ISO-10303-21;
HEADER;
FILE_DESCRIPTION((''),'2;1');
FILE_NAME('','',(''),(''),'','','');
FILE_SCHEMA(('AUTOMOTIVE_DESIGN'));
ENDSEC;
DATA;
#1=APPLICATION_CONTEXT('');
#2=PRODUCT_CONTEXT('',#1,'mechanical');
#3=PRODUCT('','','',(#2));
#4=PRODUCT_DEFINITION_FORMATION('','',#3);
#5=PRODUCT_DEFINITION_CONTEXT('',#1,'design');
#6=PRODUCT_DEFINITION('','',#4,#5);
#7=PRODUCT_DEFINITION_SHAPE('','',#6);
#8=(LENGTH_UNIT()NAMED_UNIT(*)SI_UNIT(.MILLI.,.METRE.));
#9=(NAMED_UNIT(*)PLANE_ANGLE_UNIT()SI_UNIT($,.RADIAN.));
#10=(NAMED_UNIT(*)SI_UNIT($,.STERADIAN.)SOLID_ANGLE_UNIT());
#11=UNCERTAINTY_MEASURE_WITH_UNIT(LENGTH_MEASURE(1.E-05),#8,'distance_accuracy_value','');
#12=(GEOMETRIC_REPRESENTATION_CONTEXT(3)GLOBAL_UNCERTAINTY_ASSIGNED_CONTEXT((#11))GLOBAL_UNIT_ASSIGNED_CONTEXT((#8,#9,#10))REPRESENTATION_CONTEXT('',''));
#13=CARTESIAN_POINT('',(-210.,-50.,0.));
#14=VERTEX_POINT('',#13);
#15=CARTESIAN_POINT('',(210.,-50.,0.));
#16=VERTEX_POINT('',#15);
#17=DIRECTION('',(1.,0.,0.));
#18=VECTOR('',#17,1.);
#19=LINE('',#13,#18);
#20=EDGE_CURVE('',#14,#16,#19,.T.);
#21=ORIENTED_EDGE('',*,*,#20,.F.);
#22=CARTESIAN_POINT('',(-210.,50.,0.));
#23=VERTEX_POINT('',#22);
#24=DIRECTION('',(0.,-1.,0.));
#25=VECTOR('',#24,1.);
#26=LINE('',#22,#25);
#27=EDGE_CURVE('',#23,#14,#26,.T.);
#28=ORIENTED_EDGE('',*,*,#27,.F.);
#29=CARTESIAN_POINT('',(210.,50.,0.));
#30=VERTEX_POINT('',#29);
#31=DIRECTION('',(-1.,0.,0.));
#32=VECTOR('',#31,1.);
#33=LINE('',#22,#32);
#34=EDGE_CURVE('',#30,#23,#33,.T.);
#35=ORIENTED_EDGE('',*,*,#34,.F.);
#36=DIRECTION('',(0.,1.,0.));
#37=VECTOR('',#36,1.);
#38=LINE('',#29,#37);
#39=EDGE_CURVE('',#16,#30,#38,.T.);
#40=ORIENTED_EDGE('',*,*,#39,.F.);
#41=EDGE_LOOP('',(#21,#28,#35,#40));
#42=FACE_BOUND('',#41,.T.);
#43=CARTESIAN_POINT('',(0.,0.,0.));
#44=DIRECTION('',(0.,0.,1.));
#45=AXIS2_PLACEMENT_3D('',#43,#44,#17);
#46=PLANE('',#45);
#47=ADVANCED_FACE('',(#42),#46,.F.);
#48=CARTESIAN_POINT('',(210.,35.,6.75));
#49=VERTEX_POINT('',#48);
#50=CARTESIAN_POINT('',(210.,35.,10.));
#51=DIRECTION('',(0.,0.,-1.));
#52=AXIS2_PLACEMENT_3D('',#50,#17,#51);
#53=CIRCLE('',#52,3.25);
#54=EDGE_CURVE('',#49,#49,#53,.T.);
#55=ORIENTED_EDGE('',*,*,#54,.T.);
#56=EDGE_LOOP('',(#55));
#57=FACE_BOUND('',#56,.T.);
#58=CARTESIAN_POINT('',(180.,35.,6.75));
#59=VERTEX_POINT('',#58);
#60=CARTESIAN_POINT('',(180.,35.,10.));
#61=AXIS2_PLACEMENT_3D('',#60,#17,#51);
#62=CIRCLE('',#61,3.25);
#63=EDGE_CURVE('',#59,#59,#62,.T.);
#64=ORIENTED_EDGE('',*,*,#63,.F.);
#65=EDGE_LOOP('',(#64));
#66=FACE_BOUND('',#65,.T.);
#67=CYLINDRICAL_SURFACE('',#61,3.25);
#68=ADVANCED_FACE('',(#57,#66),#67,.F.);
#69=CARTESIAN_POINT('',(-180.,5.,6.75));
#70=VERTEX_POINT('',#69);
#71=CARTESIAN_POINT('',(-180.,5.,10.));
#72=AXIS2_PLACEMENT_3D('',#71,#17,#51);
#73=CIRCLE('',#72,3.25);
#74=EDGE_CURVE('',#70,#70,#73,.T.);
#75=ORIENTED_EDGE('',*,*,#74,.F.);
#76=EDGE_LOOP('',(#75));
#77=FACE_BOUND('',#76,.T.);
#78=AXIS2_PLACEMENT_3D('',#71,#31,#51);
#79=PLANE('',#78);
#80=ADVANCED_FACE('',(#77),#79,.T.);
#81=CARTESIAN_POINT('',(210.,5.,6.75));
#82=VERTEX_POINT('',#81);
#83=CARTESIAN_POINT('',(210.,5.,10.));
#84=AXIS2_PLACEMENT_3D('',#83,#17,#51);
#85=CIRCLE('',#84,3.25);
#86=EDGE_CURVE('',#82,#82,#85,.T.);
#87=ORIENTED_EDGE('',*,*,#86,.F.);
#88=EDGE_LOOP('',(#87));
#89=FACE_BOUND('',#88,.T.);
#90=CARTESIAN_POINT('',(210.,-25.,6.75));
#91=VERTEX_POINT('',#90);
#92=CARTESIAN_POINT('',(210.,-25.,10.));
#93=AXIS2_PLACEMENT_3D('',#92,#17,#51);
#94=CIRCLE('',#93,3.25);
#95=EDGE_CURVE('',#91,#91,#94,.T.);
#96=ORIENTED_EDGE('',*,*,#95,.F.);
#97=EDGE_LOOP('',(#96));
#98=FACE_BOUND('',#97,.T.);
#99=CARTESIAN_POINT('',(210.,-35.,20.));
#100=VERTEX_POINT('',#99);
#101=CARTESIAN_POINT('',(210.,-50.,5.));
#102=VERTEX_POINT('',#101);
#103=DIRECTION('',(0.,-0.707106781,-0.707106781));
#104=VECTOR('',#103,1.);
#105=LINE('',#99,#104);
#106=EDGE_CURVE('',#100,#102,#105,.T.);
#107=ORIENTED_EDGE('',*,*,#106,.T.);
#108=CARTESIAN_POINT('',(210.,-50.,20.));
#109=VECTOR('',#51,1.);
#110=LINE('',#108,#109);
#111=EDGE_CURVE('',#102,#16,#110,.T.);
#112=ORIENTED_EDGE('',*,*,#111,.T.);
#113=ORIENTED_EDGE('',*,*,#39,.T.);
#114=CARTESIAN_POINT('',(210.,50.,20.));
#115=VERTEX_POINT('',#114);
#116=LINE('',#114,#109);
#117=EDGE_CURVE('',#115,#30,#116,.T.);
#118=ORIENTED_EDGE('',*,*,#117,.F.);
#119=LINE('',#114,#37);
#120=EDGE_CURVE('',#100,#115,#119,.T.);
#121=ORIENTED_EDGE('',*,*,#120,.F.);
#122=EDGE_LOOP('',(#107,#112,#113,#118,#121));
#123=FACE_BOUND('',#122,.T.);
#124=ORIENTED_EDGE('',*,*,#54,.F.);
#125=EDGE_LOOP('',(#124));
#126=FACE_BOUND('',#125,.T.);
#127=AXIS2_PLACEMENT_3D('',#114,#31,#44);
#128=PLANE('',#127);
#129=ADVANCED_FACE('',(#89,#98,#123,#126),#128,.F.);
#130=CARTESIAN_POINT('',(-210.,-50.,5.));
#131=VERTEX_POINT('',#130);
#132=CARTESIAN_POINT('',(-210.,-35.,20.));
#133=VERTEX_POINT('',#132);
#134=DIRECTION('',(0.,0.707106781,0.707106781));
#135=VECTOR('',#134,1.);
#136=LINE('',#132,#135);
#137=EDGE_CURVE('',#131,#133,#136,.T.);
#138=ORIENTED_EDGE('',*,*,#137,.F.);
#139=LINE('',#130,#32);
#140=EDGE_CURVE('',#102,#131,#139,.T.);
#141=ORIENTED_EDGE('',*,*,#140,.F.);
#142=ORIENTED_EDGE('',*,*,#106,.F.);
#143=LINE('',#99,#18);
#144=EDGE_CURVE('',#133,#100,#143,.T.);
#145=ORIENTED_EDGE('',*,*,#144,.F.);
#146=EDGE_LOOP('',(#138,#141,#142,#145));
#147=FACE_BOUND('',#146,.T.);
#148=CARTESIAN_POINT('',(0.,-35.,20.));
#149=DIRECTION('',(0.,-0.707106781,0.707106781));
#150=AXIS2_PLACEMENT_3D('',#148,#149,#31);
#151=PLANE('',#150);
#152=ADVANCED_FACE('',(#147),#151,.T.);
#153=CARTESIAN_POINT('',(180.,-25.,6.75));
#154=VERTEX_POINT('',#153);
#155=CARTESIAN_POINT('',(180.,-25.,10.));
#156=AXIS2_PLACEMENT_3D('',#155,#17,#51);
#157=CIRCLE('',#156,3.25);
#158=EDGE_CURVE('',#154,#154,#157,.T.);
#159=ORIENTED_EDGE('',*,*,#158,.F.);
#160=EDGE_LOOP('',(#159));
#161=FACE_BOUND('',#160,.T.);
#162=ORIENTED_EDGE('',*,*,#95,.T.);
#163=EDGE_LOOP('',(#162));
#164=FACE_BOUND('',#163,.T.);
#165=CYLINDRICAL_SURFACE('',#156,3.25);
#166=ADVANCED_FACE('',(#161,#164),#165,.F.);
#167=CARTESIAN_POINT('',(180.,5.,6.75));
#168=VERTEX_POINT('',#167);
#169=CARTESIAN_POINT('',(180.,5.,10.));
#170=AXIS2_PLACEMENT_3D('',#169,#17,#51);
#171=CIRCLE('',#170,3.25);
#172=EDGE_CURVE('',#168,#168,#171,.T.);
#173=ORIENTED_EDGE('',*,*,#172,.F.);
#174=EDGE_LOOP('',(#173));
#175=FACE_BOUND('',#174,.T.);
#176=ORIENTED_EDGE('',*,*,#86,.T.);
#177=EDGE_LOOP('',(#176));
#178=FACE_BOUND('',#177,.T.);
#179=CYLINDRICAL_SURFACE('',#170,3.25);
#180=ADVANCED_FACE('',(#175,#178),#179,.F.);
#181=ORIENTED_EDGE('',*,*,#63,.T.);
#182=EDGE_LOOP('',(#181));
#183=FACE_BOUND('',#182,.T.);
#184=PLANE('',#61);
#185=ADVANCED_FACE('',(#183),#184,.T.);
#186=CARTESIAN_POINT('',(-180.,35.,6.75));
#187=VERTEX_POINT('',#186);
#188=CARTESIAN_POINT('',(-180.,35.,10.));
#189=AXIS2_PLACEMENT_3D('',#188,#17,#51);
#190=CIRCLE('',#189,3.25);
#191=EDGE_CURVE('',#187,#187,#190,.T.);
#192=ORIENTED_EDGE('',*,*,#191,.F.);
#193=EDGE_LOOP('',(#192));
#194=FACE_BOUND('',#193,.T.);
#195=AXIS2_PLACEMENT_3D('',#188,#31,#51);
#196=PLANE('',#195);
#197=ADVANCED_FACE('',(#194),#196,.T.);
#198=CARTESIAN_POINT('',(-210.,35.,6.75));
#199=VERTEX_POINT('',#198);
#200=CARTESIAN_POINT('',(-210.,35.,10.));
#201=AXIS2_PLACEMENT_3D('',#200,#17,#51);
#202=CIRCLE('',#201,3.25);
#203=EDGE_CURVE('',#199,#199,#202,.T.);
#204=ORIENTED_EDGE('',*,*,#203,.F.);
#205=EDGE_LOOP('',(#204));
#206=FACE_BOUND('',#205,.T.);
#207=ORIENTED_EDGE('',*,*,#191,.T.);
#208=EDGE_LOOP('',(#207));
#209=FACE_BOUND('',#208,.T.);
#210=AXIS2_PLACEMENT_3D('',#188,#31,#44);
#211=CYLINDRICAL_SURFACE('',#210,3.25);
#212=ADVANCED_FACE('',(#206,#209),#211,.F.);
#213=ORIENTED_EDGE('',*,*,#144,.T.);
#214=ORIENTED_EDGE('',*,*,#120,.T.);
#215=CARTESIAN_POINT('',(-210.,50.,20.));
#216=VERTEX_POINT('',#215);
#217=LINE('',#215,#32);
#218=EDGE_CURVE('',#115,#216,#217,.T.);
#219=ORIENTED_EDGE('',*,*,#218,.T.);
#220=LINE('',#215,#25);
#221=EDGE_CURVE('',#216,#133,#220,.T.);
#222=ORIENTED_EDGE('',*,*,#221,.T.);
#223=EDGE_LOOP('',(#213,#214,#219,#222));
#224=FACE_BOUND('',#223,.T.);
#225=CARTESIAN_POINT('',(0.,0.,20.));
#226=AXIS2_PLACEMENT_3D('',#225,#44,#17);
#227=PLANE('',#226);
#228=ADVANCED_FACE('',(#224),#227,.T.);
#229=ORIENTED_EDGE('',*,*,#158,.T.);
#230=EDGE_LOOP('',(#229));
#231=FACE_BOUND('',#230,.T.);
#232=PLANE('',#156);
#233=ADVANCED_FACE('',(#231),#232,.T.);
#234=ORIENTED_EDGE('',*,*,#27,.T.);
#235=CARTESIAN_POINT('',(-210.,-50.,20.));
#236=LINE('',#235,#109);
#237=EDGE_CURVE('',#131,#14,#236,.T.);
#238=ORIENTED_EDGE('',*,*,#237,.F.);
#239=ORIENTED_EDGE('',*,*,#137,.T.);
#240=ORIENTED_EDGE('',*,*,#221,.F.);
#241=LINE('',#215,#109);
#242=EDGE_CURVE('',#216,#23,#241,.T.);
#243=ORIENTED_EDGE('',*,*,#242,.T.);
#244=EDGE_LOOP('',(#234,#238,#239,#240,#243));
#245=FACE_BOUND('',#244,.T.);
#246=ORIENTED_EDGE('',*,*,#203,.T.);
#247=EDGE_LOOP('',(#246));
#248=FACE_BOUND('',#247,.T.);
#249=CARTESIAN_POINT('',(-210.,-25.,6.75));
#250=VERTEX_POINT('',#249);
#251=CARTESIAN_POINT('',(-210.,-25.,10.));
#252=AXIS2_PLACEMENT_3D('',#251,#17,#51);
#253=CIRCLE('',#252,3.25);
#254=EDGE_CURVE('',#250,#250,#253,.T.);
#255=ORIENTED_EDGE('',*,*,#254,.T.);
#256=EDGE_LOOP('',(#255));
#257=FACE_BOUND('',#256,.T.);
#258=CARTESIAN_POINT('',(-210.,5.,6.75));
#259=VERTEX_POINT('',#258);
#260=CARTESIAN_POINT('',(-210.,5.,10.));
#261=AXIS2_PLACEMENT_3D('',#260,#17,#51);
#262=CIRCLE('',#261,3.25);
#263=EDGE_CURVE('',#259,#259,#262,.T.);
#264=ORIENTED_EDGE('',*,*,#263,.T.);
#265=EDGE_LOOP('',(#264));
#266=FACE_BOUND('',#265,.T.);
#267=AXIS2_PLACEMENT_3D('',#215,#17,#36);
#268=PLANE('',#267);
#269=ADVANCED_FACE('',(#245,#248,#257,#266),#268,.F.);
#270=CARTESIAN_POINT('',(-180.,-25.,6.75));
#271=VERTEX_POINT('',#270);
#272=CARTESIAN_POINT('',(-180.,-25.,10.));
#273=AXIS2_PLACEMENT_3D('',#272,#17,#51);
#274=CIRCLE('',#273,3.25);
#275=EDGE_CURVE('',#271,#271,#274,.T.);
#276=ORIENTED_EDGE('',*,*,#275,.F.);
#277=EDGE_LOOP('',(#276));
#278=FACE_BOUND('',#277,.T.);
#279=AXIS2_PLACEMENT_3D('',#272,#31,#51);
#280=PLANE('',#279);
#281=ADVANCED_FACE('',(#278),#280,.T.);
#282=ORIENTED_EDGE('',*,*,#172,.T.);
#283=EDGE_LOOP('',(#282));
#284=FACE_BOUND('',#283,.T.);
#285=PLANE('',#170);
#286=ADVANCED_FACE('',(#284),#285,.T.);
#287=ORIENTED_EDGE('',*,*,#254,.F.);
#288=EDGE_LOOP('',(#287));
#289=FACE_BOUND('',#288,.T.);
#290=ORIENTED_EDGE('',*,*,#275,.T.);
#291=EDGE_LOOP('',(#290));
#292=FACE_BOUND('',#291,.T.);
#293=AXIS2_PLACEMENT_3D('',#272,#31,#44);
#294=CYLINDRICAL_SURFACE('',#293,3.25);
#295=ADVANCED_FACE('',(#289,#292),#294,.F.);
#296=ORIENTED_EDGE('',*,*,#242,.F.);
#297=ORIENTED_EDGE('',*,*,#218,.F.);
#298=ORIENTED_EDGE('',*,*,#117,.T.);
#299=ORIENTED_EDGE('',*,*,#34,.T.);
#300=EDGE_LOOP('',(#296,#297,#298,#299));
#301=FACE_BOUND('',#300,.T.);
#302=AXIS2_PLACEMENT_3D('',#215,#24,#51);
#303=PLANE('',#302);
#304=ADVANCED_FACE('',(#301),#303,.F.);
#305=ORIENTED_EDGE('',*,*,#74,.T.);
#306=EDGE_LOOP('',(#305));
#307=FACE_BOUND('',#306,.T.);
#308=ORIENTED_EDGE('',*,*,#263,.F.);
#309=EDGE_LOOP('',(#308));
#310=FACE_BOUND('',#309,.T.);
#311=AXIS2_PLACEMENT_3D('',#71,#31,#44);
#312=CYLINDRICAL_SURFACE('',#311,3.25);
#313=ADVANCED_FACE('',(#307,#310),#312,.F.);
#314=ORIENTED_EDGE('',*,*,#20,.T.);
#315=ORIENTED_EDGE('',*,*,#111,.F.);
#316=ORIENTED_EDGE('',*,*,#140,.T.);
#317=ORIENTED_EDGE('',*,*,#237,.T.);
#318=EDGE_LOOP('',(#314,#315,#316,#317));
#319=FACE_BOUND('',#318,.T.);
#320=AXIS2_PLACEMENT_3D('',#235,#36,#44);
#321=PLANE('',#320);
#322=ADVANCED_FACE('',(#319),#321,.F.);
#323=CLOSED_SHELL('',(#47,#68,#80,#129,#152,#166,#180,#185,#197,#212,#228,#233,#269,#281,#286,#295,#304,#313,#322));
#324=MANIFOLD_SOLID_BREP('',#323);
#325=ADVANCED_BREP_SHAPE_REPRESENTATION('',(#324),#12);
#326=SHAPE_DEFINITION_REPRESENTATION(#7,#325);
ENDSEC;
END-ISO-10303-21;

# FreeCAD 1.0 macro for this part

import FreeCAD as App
import Part
import Sketcher
Q = App.Units.Quantity


def edges_at(feature, points):
    """Names of the edges that pass closest to the given points."""
    edges = feature.Shape.Edges
    near = lambda p: min(range(len(edges)), key=lambda i: edges[i].distToShape(Part.Vertex(*p))[0])
    return sorted({f"Edge{near(p) + 1}" for p in points})


def add_polygon(sketch, points):
    """Adds a closed chain of lines whose ends are joined by coincident constraints."""
    first, n = sketch.GeometryCount, len(points)
    for a, b in zip(points, points[1:] + points[:1]):
        sketch.addGeometry(Part.LineSegment(App.Vector(*a, 0), App.Vector(*b, 0)), False)
    for i in range(n):
        sketch.addConstraint(Sketcher.Constraint("Coincident", first + i, 2, first + (i + 1) % n, 1))

doc = App.newDocument("Part")
body = doc.addObject("PartDesign::Body", "Body")

# Sketch on XY plane
sketch1 = body.newObject("Sketcher::SketchObject", "Sketch")
sketch1.AttachmentSupport = (doc.getObject("XY_Plane"), [""])
sketch1.MapMode = "FlatFace"
add_polygon(sketch1, [(-210, 50), (-210, -50), (210, -50), (210, 50)])  # lines 0-3
sketch1.addConstraint(Sketcher.Constraint("Vertical", 0))
sketch1.addConstraint(Sketcher.Constraint("Horizontal", 1))
sketch1.addConstraint(Sketcher.Constraint("Vertical", 2))
sketch1.addConstraint(Sketcher.Constraint("Horizontal", 3))
sketch1.addConstraint(Sketcher.Constraint("Symmetric", 0, 2, 2, 2, -1, 1))
sketch1.addConstraint(Sketcher.Constraint("DistanceX", 1, 1, 1, 2, Q("420 mm")))
sketch1.addConstraint(Sketcher.Constraint("DistanceY", 0, 2, 0, 1, Q("100 mm")))
pad1 = body.newObject("PartDesign::Pad", "Pad")
pad1.Profile = sketch1
pad1.Length = 20
doc.recompute()

chamfer = body.newObject("PartDesign::Chamfer", "Chamfer")
chamfer.Base = (pad1, edges_at(pad1, [(0, -50, 20)]))
chamfer.Size = 15

# Sketch on YZ plane
sketch2 = body.newObject("Sketcher::SketchObject", "Sketch001")
sketch2.AttachmentSupport = (doc.getObject("YZ_Plane"), [""])
sketch2.MapMode = "FlatFace"
sketch2.AttachmentOffset = App.Placement(App.Vector(0, 0, 210), App.Rotation())
sketch2.addGeometry(Part.Circle(App.Vector(35, 10, 0), App.Vector(0, 0, 1), 3.25), False)
sketch2.addGeometry(Part.Circle(App.Vector(5, 10, 0), App.Vector(0, 0, 1), 3.25), False)
sketch2.addGeometry(Part.Circle(App.Vector(-25, 10, 0), App.Vector(0, 0, 1), 3.25), False)
sketch2.addConstraint(Sketcher.Constraint("Equal", 0, 1))
sketch2.addConstraint(Sketcher.Constraint("Equal", 1, 2))
sketch2.addConstraint(Sketcher.Constraint("Horizontal", 0, 3, 1, 3))
sketch2.addConstraint(Sketcher.Constraint("Horizontal", 1, 3, 2, 3))
sketch2.addConstraint(Sketcher.Constraint("Diameter", 0, Q("6.5 mm")))
sketch2.addConstraint(Sketcher.Constraint("DistanceX", -1, 1, 0, 3, Q("35 mm")))
sketch2.addConstraint(Sketcher.Constraint("DistanceY", -1, 1, 0, 3, Q("10 mm")))
sketch2.addConstraint(Sketcher.Constraint("DistanceX", -1, 1, 1, 3, Q("5 mm")))
sketch2.addConstraint(Sketcher.Constraint("DistanceX", 2, 3, -1, 1, Q("25 mm")))
pocket1 = body.newObject("PartDesign::Pocket", "Pocket")
pocket1.Profile = sketch2
pocket1.Length = 30
doc.recompute()

mirrored = body.newObject("PartDesign::Mirrored", "Mirrored")
mirrored.Originals = [pocket1]
mirrored.MirrorPlane = (doc.getObject("YZ_Plane"), [""])
body.Tip = mirrored

doc.recompute()
